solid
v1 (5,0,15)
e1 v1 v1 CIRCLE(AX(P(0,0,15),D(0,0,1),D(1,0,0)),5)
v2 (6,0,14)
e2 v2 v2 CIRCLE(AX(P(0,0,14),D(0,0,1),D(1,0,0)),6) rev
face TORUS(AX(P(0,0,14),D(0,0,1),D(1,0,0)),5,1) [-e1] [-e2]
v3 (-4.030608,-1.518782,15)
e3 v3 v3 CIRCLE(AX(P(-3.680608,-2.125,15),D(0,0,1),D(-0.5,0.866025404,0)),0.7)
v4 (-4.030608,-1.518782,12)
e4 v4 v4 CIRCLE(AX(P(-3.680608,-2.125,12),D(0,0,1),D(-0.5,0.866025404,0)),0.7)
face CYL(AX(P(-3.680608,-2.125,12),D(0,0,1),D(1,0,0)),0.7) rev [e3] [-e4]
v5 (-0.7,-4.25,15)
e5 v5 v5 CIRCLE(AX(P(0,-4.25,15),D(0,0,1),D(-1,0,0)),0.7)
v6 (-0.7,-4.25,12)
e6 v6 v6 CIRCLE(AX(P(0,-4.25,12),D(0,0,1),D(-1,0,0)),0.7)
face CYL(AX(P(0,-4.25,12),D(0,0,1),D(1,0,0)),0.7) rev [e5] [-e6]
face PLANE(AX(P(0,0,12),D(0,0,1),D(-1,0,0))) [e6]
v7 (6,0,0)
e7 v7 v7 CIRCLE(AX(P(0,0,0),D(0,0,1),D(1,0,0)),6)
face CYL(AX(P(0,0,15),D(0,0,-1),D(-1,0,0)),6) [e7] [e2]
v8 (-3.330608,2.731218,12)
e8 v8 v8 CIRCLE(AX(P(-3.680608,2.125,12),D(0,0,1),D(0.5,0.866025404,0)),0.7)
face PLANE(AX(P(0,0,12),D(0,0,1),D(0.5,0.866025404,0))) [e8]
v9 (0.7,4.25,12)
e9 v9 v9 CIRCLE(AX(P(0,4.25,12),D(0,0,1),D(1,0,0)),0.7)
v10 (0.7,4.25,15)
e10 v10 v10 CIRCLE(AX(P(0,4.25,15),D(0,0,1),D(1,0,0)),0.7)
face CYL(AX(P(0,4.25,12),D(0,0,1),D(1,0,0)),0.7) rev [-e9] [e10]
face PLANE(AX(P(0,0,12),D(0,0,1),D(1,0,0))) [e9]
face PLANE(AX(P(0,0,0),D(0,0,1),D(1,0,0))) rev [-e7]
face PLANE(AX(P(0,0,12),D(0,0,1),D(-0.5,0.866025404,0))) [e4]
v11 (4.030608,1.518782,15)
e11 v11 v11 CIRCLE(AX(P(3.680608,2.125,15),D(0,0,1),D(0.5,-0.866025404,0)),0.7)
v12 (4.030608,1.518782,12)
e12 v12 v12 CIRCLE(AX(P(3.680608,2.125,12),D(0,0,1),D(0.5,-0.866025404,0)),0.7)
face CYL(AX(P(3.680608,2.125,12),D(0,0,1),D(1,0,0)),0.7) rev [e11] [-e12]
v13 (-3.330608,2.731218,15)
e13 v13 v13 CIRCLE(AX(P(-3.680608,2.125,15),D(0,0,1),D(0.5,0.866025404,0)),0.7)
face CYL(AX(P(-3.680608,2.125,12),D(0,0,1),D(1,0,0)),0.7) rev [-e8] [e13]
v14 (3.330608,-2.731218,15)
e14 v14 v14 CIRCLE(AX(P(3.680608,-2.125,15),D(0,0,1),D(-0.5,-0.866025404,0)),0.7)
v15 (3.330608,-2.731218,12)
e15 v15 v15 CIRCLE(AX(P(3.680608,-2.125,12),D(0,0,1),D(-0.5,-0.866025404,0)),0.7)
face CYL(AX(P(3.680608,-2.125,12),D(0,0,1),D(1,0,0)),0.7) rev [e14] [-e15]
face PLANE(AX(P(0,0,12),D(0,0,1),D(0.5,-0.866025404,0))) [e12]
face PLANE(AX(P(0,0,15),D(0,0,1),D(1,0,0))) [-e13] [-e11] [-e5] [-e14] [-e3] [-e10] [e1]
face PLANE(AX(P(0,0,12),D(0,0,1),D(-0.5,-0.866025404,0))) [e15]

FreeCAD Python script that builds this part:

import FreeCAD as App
import Part
import Sketcher

V = App.Vector


def edges_at(feature, points):
    """Names of the edges that pass closest to the given points."""
    edges = feature.Shape.Edges
    near = lambda p: min(range(len(edges)), key=lambda i: edges[i].distToShape(Part.Vertex(*p))[0])
    return sorted({f"Edge{near(p) + 1}" for p in points})

doc = App.newDocument("Part")
body = doc.addObject("PartDesign::Body", "Body")

# Sketch on XY plane
sketch1 = body.newObject("Sketcher::SketchObject", "Sketch")
sketch1.AttachmentSupport = (doc.getObject("XY_Plane"), [""])
sketch1.MapMode = "FlatFace"
sketch1.addGeometry(Part.Circle(V(0, 0, 0), V(0, 0, 1), 6), False)
sketch1.addConstraint([
    Sketcher.Constraint("Coincident", 0, 3, -1, 1),
    Sketcher.Constraint("Diameter", 0, 12.0),
])
pad1 = body.newObject("PartDesign::Pad", "Pad")
pad1.Profile = sketch1
pad1.Length = 15

# Sketch on XY plane
sketch2 = body.newObject("Sketcher::SketchObject", "Sketch001")
sketch2.AttachmentSupport = (doc.getObject("XY_Plane"), [""])
sketch2.MapMode = "FlatFace"
sketch2.AttachmentOffset = App.Placement(V(0, 0, 15), App.Rotation())
sketch2.addGeometry(Part.Circle(V(0, 4.25, 0), V(0, 0, 1), 0.7), False)
sketch2.addConstraint([
    Sketcher.Constraint("PointOnObject", 0, 3, -2),
    Sketcher.Constraint("Diameter", 0, 1.4),
    Sketcher.Constraint("DistanceY", -1, 1, 0, 3, 4.25),
])
pocket1 = body.newObject("PartDesign::Pocket", "Pocket")
pocket1.Profile = sketch2
pocket1.Length = 3
doc.recompute()

polarpattern = body.newObject("PartDesign::PolarPattern", "PolarPattern")
polarpattern.Originals = [pocket1]
polarpattern.Axis = (doc.getObject("Z_Axis"), [""])
polarpattern.Angle = 360
polarpattern.Occurrences = 6
body.Tip = polarpattern
doc.recompute()

fillet = body.newObject("PartDesign::Fillet", "Fillet")
fillet.Base = (polarpattern, edges_at(polarpattern, [(-6, 0, 15)]))
fillet.Radius = 1

doc.recompute()
